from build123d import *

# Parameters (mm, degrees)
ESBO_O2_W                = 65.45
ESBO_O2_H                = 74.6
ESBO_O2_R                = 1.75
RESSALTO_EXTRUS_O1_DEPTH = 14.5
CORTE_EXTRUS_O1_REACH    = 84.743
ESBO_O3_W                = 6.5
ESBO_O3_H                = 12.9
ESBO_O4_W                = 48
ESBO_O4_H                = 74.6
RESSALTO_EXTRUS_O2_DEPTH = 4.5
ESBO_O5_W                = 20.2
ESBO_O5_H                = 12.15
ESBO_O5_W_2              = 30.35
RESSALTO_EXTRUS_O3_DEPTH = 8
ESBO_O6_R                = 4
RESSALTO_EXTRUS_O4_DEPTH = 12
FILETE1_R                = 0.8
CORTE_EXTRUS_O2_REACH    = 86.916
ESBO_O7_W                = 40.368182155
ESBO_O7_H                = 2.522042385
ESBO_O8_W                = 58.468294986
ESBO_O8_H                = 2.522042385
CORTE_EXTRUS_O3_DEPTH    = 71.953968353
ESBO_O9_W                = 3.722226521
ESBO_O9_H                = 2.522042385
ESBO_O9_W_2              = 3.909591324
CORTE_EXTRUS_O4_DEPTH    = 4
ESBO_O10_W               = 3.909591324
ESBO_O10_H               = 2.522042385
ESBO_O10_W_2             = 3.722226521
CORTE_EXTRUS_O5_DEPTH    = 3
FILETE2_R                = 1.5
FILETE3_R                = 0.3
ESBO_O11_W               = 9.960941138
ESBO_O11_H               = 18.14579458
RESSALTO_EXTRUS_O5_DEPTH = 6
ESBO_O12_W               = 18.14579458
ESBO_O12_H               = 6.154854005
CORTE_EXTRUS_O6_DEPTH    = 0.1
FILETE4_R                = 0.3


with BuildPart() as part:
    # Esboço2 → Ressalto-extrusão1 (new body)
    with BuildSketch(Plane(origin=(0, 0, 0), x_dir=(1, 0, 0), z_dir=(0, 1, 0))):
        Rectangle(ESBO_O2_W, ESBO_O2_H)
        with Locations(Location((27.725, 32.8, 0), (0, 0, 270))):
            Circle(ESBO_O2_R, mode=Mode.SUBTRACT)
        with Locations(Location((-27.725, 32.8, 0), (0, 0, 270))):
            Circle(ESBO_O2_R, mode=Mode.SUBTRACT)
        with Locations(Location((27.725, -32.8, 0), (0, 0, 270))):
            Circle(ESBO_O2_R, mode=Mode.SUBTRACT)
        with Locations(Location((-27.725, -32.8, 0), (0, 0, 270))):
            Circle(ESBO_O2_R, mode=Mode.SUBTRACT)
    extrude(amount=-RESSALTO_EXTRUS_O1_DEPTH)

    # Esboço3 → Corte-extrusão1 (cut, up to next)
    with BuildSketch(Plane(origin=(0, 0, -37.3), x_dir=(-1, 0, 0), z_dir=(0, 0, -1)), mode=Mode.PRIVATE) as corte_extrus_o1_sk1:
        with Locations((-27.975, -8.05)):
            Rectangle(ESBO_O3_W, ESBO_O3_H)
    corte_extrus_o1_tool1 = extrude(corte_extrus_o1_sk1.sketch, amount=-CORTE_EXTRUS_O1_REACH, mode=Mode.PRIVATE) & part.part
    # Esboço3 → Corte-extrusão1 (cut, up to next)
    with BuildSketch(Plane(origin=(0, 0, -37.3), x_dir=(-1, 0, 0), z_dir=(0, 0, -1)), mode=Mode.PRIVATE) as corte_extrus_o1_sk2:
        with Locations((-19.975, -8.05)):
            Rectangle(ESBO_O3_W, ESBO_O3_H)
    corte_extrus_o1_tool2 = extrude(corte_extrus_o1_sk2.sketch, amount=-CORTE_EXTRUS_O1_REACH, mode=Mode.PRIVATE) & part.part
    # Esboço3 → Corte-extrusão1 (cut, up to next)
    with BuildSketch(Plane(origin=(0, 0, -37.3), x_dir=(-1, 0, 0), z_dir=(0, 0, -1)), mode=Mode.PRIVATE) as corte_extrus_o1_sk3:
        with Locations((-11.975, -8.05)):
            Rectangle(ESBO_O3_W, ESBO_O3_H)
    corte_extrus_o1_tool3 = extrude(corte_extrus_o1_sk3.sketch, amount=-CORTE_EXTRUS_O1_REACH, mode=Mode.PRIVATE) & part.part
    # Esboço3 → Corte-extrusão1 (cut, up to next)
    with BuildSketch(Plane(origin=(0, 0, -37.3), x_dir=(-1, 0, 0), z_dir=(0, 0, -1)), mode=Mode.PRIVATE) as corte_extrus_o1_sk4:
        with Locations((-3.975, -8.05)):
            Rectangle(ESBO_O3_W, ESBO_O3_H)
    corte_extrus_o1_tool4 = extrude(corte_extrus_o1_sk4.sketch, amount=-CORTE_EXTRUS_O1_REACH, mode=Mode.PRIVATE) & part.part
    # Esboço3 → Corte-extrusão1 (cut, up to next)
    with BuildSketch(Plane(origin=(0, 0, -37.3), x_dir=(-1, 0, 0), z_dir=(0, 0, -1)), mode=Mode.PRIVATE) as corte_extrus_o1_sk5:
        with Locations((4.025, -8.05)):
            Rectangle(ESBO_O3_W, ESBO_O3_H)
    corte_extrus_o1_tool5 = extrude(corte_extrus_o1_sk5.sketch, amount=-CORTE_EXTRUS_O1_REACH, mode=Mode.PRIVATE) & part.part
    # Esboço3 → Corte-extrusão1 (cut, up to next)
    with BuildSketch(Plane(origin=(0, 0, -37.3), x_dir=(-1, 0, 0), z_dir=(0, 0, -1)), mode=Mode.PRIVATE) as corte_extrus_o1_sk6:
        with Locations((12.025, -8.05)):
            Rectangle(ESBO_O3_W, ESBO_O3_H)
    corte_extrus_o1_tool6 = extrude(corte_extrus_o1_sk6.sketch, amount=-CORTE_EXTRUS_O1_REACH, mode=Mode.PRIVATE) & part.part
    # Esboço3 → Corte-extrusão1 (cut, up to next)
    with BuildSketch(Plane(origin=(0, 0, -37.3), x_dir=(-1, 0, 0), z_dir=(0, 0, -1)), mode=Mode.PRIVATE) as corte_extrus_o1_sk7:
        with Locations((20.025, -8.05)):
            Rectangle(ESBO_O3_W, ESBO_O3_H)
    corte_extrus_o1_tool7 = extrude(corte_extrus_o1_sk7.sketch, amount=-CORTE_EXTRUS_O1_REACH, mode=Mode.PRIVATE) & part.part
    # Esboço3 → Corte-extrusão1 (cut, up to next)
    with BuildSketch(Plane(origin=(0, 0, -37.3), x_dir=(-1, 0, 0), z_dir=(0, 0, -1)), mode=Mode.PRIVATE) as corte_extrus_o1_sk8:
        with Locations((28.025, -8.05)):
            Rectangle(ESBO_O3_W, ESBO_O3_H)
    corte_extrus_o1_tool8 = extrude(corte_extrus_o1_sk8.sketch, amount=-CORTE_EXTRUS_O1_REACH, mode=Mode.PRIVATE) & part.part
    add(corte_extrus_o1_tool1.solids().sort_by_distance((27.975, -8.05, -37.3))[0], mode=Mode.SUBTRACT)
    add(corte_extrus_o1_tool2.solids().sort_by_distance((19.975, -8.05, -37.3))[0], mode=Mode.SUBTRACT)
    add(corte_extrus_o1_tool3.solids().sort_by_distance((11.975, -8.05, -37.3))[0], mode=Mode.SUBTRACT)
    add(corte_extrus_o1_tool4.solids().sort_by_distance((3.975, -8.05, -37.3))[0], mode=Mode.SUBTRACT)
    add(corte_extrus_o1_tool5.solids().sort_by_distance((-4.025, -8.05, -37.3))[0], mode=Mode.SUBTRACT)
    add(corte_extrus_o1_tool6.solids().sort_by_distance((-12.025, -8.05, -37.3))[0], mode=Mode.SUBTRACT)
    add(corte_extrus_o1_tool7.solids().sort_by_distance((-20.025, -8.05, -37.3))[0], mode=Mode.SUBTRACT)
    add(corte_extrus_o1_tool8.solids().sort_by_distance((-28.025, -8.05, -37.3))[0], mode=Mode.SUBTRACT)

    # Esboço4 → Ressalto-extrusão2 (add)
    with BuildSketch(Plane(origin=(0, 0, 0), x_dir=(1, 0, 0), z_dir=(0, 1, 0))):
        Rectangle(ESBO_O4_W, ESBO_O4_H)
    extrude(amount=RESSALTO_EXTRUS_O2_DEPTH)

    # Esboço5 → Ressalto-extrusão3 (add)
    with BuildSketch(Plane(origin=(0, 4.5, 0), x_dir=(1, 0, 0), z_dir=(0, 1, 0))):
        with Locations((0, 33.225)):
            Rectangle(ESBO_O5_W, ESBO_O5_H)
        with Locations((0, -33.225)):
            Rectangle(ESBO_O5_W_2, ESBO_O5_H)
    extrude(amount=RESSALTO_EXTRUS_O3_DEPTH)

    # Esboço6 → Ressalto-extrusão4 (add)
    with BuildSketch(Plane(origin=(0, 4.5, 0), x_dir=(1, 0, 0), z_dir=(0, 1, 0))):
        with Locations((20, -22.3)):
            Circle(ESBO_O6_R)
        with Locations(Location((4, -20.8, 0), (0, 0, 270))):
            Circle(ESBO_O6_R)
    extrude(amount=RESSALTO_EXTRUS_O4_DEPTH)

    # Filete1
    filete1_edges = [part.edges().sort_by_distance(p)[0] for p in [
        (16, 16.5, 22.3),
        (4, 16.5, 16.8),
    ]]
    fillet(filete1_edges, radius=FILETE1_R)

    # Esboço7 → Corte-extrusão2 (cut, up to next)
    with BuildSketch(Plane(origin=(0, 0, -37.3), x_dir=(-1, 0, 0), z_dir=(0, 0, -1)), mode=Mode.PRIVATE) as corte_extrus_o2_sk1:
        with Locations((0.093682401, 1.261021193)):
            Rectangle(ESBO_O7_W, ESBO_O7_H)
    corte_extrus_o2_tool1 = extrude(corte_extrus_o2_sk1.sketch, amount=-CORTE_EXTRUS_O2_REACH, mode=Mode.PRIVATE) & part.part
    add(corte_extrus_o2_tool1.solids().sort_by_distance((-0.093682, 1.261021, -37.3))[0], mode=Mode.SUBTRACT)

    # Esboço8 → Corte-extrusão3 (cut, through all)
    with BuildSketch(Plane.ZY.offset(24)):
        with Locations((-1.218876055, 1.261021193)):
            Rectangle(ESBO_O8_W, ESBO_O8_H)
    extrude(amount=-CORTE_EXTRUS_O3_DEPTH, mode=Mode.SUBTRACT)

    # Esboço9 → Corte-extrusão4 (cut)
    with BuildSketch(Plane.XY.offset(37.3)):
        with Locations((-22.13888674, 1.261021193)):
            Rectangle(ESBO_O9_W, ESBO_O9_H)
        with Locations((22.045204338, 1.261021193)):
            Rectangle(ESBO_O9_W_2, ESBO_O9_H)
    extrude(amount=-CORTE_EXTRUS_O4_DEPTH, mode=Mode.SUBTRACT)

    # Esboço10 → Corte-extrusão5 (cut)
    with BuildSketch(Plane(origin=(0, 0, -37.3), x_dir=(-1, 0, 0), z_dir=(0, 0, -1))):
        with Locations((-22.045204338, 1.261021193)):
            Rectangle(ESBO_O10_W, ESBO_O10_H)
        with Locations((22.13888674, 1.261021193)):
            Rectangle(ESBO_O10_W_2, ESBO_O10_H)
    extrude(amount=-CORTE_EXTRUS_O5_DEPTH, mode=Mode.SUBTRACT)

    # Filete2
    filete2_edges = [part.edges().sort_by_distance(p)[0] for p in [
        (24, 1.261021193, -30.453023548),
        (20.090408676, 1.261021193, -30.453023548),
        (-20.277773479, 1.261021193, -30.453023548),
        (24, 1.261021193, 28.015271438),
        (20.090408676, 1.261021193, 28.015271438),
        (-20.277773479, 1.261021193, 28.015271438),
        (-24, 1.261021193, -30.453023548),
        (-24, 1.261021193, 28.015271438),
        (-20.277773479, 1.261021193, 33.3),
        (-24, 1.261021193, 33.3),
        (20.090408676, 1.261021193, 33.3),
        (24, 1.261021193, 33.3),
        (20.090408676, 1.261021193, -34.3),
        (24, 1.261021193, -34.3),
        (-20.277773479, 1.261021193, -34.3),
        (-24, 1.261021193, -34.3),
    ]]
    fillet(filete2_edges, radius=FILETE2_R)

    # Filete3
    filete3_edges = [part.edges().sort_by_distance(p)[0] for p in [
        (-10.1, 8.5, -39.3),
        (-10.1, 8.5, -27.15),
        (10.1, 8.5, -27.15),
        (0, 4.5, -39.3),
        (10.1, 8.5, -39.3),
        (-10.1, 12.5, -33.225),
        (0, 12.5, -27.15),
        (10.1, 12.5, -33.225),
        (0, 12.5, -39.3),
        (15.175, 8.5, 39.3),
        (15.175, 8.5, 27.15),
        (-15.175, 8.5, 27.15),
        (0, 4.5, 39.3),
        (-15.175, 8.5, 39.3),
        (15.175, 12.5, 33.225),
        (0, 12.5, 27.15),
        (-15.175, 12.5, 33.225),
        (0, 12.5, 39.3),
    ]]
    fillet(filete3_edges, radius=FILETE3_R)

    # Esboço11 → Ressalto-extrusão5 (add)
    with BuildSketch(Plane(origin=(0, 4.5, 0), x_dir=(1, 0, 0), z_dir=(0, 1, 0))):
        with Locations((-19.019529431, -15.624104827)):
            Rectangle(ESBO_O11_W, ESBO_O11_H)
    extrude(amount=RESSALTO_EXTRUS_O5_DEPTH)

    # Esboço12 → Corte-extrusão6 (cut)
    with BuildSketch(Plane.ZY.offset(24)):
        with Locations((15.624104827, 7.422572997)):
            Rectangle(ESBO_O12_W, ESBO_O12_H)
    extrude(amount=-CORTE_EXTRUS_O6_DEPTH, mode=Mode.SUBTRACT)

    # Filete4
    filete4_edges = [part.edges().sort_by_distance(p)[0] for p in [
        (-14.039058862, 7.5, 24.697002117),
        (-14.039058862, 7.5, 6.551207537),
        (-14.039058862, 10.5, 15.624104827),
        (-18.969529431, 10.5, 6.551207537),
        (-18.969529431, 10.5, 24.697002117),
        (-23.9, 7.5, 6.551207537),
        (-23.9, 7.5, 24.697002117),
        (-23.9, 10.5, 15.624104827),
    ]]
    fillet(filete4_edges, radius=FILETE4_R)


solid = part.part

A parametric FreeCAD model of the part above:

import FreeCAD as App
import Part
import Sketcher
from FreeCAD import Vector
Q = App.Units.Quantity


def edges_at(feature, points):
    """Names of the edges that pass closest to the given points."""
    edges = feature.Shape.Edges
    near = lambda p: min(range(len(edges)), key=lambda i: edges[i].distToShape(Part.Vertex(*p))[0])
    return sorted({f"Edge{near(p) + 1}" for p in points})

doc = App.newDocument("Part")
body = doc.addObject("PartDesign::Body", "Body")

# Sketch on XZ plane
sketch1 = body.newObject("Sketcher::SketchObject", "Sketch")
sketch1.AttachmentSupport = (doc.getObject("XZ_Plane"), [""])
sketch1.MapMode = "FlatFace"
sketch1.addGeometry([
    Part.LineSegment(Vector(-32.7, -37.3, 0), Vector(-32.7, 37.3, 0)),  # 0
    Part.LineSegment(Vector(-32.7, 37.3, 0), Vector(32.7, 37.3, 0)),  # 1
    Part.LineSegment(Vector(32.7, 37.3, 0), Vector(32.7, -37.3, 0)),  # 2
    Part.LineSegment(Vector(32.7, -37.3, 0), Vector(-32.7, -37.3, 0)),  # 3
    Part.Circle(Vector(-27.7, 32.8, 0), Vector(0, 0, 1), 1.8),  # 4
    Part.Circle(Vector(27.7, 32.8, 0), Vector(0, 0, 1), 1.8),  # 5
    Part.Circle(Vector(-27.7, -32.8, 0), Vector(0, 0, 1), 1.8),  # 6
    Part.Circle(Vector(27.7, -32.8, 0), Vector(0, 0, 1), 1.8),  # 7
], False)
sketch1.addConstraint([
    Sketcher.Constraint("Coincident", 0, 2, 1, 1),
    Sketcher.Constraint("Coincident", 1, 2, 2, 1),
    Sketcher.Constraint("Coincident", 2, 2, 3, 1),
    Sketcher.Constraint("Coincident", 3, 2, 0, 1),
    Sketcher.Constraint("Vertical", 0),
    Sketcher.Constraint("Horizontal", 1),
    Sketcher.Constraint("Vertical", 2),
    Sketcher.Constraint("Horizontal", 3),
    Sketcher.Constraint("Equal", 4, 5),
    Sketcher.Constraint("Equal", 5, 6),
    Sketcher.Constraint("Equal", 6, 7),
    Sketcher.Constraint("Symmetric", 5, 3, 6, 3, -1, 1),
    Sketcher.Constraint("Symmetric", 4, 3, 7, 3, -1, 1),
    Sketcher.Constraint("Symmetric", 0, 2, 2, 2, -1, 1),
    Sketcher.Constraint("Symmetric", 4, 3, 5, 3, -2),
    Sketcher.Constraint("Diameter", 4, Q("3.5 mm")),
    Sketcher.Constraint("DistanceY", 0, 1, 0, 2, Q("74.6 mm")),
    Sketcher.Constraint("DistanceX", 0, 2, 4, 3, Q("5 mm")),
    Sketcher.Constraint("DistanceX", 1, 1, 1, 2, Q("65.45 mm")),
    Sketcher.Constraint("DistanceY", -1, 1, 4, 3, Q("32.8 mm")),
])
pad1 = body.newObject("PartDesign::Pad", "Pad")
pad1.Profile = sketch1
pad1.Length = 14.5

# Sketch on XY plane
sketch2 = body.newObject("Sketcher::SketchObject", "Sketch001")
sketch2.AttachmentSupport = (doc.getObject("XY_Plane"), [""])
sketch2.MapMode = "FlatFace"
sketch2.AttachmentOffset = App.Placement(Vector(0, 0, -37.3), App.Rotation())
sketch2.addGeometry([
    Part.LineSegment(Vector(31, -2, 0), Vector(31, -14, 0)),
    Part.LineSegment(Vector(31, -14, 0), Vector(25, -14, 0)),
    Part.LineSegment(Vector(25, -14, 0), Vector(25, -2, 0)),
    Part.LineSegment(Vector(25, -2, 0), Vector(31, -2, 0)),
], False)
sketch2.addConstraint([
    Sketcher.Constraint("Coincident", 0, 2, 1, 1),
    Sketcher.Constraint("Coincident", 1, 2, 2, 1),
    Sketcher.Constraint("Coincident", 2, 2, 3, 1),
    Sketcher.Constraint("Coincident", 3, 2, 0, 1),
    Sketcher.Constraint("Vertical", 0),
    Sketcher.Constraint("Horizontal", 1),
    Sketcher.Constraint("Vertical", 2),
    Sketcher.Constraint("Horizontal", 3),
    Sketcher.Constraint("DistanceX", 1, 2, 1, 1, Q("6.5 mm")),
    Sketcher.Constraint("DistanceY", 0, 2, 0, 1, Q("12.9 mm")),
    Sketcher.Constraint("DistanceY", 0, 2, -1, 1, Q("14.5 mm")),
    Sketcher.Constraint("DistanceX", -1, 1, 0, 2, Q("31.225 mm")),
])
pocket1 = body.newObject("PartDesign::Pocket", "Pocket")
pocket1.Profile = sketch2
pocket1.Type = "UpToFirst"
pocket1.Reversed = True

# Sketch on XY plane
sketch3 = body.newObject("Sketcher::SketchObject", "Sketch002")
sketch3.AttachmentSupport = (doc.getObject("XY_Plane"), [""])
sketch3.MapMode = "FlatFace"
sketch3.AttachmentOffset = App.Placement(Vector(0, 0, -37.3), App.Rotation())
sketch3.addGeometry([
    Part.LineSegment(Vector(23, -2, 0), Vector(23, -14, 0)),
    Part.LineSegment(Vector(23, -14, 0), Vector(17, -14, 0)),
    Part.LineSegment(Vector(17, -14, 0), Vector(17, -2, 0)),
    Part.LineSegment(Vector(17, -2, 0), Vector(23, -2, 0)),
], False)
sketch3.addConstraint([
    Sketcher.Constraint("Coincident", 0, 2, 1, 1),
    Sketcher.Constraint("Coincident", 1, 2, 2, 1),
    Sketcher.Constraint("Coincident", 2, 2, 3, 1),
    Sketcher.Constraint("Coincident", 3, 2, 0, 1),
    Sketcher.Constraint("Vertical", 0),
    Sketcher.Constraint("Horizontal", 1),
    Sketcher.Constraint("Vertical", 2),
    Sketcher.Constraint("Horizontal", 3),
    Sketcher.Constraint("DistanceX", 1, 2, 1, 1, Q("6.5 mm")),
    Sketcher.Constraint("DistanceY", 0, 2, 0, 1, Q("12.9 mm")),
    Sketcher.Constraint("DistanceY", 0, 2, -1, 1, Q("14.5 mm")),
    Sketcher.Constraint("DistanceX", -1, 1, 0, 2, Q("23.225 mm")),
])
pocket2 = body.newObject("PartDesign::Pocket", "Pocket001")
pocket2.Profile = sketch3
pocket2.Type = "UpToFirst"
pocket2.Reversed = True

# Sketch on XY plane
sketch4 = body.newObject("Sketcher::SketchObject", "Sketch003")
sketch4.AttachmentSupport = (doc.getObject("XY_Plane"), [""])
sketch4.MapMode = "FlatFace"
sketch4.AttachmentOffset = App.Placement(Vector(0, 0, -37.3), App.Rotation())
sketch4.addGeometry([
    Part.LineSegment(Vector(15, -2, 0), Vector(15, -14, 0)),
    Part.LineSegment(Vector(15, -14, 0), Vector(9, -14, 0)),
    Part.LineSegment(Vector(9, -14, 0), Vector(9, -2, 0)),
    Part.LineSegment(Vector(9, -2, 0), Vector(15, -2, 0)),
], False)
sketch4.addConstraint([
    Sketcher.Constraint("Coincident", 0, 2, 1, 1),
    Sketcher.Constraint("Coincident", 1, 2, 2, 1),
    Sketcher.Constraint("Coincident", 2, 2, 3, 1),
    Sketcher.Constraint("Coincident", 3, 2, 0, 1),
    Sketcher.Constraint("Vertical", 0),
    Sketcher.Constraint("Horizontal", 1),
    Sketcher.Constraint("Vertical", 2),
    Sketcher.Constraint("Horizontal", 3),
    Sketcher.Constraint("DistanceX", 1, 2, 1, 1, Q("6.5 mm")),
    Sketcher.Constraint("DistanceY", 0, 2, 0, 1, Q("12.9 mm")),
    Sketcher.Constraint("DistanceY", 0, 2, -1, 1, Q("14.5 mm")),
    Sketcher.Constraint("DistanceX", -1, 1, 0, 2, Q("15.225 mm")),
])
pocket3 = body.newObject("PartDesign::Pocket", "Pocket002")
pocket3.Profile = sketch4
pocket3.Type = "UpToFirst"
pocket3.Reversed = True

# Sketch on XY plane
sketch5 = body.newObject("Sketcher::SketchObject", "Sketch004")
sketch5.AttachmentSupport = (doc.getObject("XY_Plane"), [""])
sketch5.MapMode = "FlatFace"
sketch5.AttachmentOffset = App.Placement(Vector(0, 0, -37.3), App.Rotation())
sketch5.addGeometry([
    Part.LineSegment(Vector(7, -2, 0), Vector(7, -14, 0)),
    Part.LineSegment(Vector(7, -14, 0), Vector(1, -14, 0)),
    Part.LineSegment(Vector(1, -14, 0), Vector(1, -2, 0)),
    Part.LineSegment(Vector(1, -2, 0), Vector(7, -2, 0)),
], False)
sketch5.addConstraint([
    Sketcher.Constraint("Coincident", 0, 2, 1, 1),
    Sketcher.Constraint("Coincident", 1, 2, 2, 1),
    Sketcher.Constraint("Coincident", 2, 2, 3, 1),
    Sketcher.Constraint("Coincident", 3, 2, 0, 1),
    Sketcher.Constraint("Vertical", 0),
    Sketcher.Constraint("Horizontal", 1),
    Sketcher.Constraint("Vertical", 2),
    Sketcher.Constraint("Horizontal", 3),
    Sketcher.Constraint("DistanceX", 1, 2, 1, 1, Q("6.5 mm")),
    Sketcher.Constraint("DistanceY", 0, 2, 0, 1, Q("12.9 mm")),
    Sketcher.Constraint("DistanceY", 0, 2, -1, 1, Q("14.5 mm")),
    Sketcher.Constraint("DistanceX", -1, 1, 0, 2, Q("7.225 mm")),
])
pocket4 = body.newObject("PartDesign::Pocket", "Pocket003")
pocket4.Profile = sketch5
pocket4.Type = "UpToFirst"
pocket4.Reversed = True

# Sketch on XY plane
sketch6 = body.newObject("Sketcher::SketchObject", "Sketch005")
sketch6.AttachmentSupport = (doc.getObject("XY_Plane"), [""])
sketch6.MapMode = "FlatFace"
sketch6.AttachmentOffset = App.Placement(Vector(0, 0, -37.3), App.Rotation())
sketch6.addGeometry([
    Part.LineSegment(Vector(-1, -2, 0), Vector(-1, -14, 0)),
    Part.LineSegment(Vector(-1, -14, 0), Vector(-7, -14, 0)),
    Part.LineSegment(Vector(-7, -14, 0), Vector(-7, -2, 0)),
    Part.LineSegment(Vector(-7, -2, 0), Vector(-1, -2, 0)),
], False)
sketch6.addConstraint([
    Sketcher.Constraint("Coincident", 0, 2, 1, 1),
    Sketcher.Constraint("Coincident", 1, 2, 2, 1),
    Sketcher.Constraint("Coincident", 2, 2, 3, 1),
    Sketcher.Constraint("Coincident", 3, 2, 0, 1),
    Sketcher.Constraint("Vertical", 0),
    Sketcher.Constraint("Horizontal", 1),
    Sketcher.Constraint("Vertical", 2),
    Sketcher.Constraint("Horizontal", 3),
    Sketcher.Constraint("DistanceX", 1, 2, 1, 1, Q("6.5 mm")),
    Sketcher.Constraint("DistanceY", 0, 2, 0, 1, Q("12.9 mm")),
    Sketcher.Constraint("DistanceY", 0, 2, -1, 1, Q("14.5 mm")),
    Sketcher.Constraint("DistanceX", 0, 2, -1, 1, Q("0.775 mm")),
])
pocket5 = body.newObject("PartDesign::Pocket", "Pocket004")
pocket5.Profile = sketch6
pocket5.Type = "UpToFirst"
pocket5.Reversed = True

# Sketch on XY plane
sketch7 = body.newObject("Sketcher::SketchObject", "Sketch006")
sketch7.AttachmentSupport = (doc.getObject("XY_Plane"), [""])
sketch7.MapMode = "FlatFace"
sketch7.AttachmentOffset = App.Placement(Vector(0, 0, -37.3), App.Rotation())
sketch7.addGeometry([
    Part.LineSegment(Vector(-9, -2, 0), Vector(-9, -14, 0)),
    Part.LineSegment(Vector(-9, -14, 0), Vector(-15, -14, 0)),
    Part.LineSegment(Vector(-15, -14, 0), Vector(-15, -2, 0)),
    Part.LineSegment(Vector(-15, -2, 0), Vector(-9, -2, 0)),
], False)
sketch7.addConstraint([
    Sketcher.Constraint("Coincident", 0, 2, 1, 1),
    Sketcher.Constraint("Coincident", 1, 2, 2, 1),
    Sketcher.Constraint("Coincident", 2, 2, 3, 1),
    Sketcher.Constraint("Coincident", 3, 2, 0, 1),
    Sketcher.Constraint("Vertical", 0),
    Sketcher.Constraint("Horizontal", 1),
    Sketcher.Constraint("Vertical", 2),
    Sketcher.Constraint("Horizontal", 3),
    Sketcher.Constraint("DistanceX", 1, 2, 1, 1, Q("6.5 mm")),
    Sketcher.Constraint("DistanceY", 0, 2, 0, 1, Q("12.9 mm")),
    Sketcher.Constraint("DistanceY", 0, 2, -1, 1, Q("14.5 mm")),
    Sketcher.Constraint("DistanceX", 0, 2, -1, 1, Q("8.775 mm")),
])
pocket6 = body.newObject("PartDesign::Pocket", "Pocket005")
pocket6.Profile = sketch7
pocket6.Type = "UpToFirst"
pocket6.Reversed = True

# Sketch on XY plane
sketch8 = body.newObject("Sketcher::SketchObject", "Sketch007")
sketch8.AttachmentSupport = (doc.getObject("XY_Plane"), [""])
sketch8.MapMode = "FlatFace"
sketch8.AttachmentOffset = App.Placement(Vector(0, 0, -37.3), App.Rotation())
sketch8.addGeometry([
    Part.LineSegment(Vector(-17, -2, 0), Vector(-17, -14, 0)),
    Part.LineSegment(Vector(-17, -14, 0), Vector(-23, -14, 0)),
    Part.LineSegment(Vector(-23, -14, 0), Vector(-23, -2, 0)),
    Part.LineSegment(Vector(-23, -2, 0), Vector(-17, -2, 0)),
], False)
sketch8.addConstraint([
    Sketcher.Constraint("Coincident", 0, 2, 1, 1),
    Sketcher.Constraint("Coincident", 1, 2, 2, 1),
    Sketcher.Constraint("Coincident", 2, 2, 3, 1),
    Sketcher.Constraint("Coincident", 3, 2, 0, 1),
    Sketcher.Constraint("Vertical", 0),
    Sketcher.Constraint("Horizontal", 1),
    Sketcher.Constraint("Vertical", 2),
    Sketcher.Constraint("Horizontal", 3),
    Sketcher.Constraint("DistanceX", 1, 2, 1, 1, Q("6.5 mm")),
    Sketcher.Constraint("DistanceY", 0, 2, 0, 1, Q("12.9 mm")),
    Sketcher.Constraint("DistanceY", 0, 2, -1, 1, Q("14.5 mm")),
    Sketcher.Constraint("DistanceX", 0, 2, -1, 1, Q("16.775 mm")),
])
pocket7 = body.newObject("PartDesign::Pocket", "Pocket006")
pocket7.Profile = sketch8
pocket7.Type = "UpToFirst"
pocket7.Reversed = True

# Sketch on XY plane
sketch9 = body.newObject("Sketcher::SketchObject", "Sketch008")
sketch9.AttachmentSupport = (doc.getObject("XY_Plane"), [""])
sketch9.MapMode = "FlatFace"
sketch9.AttachmentOffset = App.Placement(Vector(0, 0, -37.3), App.Rotation())
sketch9.addGeometry([
    Part.LineSegment(Vector(-25, -2, 0), Vector(-25, -14, 0)),
    Part.LineSegment(Vector(-25, -14, 0), Vector(-31, -14, 0)),
    Part.LineSegment(Vector(-31, -14, 0), Vector(-31, -2, 0)),
    Part.LineSegment(Vector(-31, -2, 0), Vector(-25, -2, 0)),
], False)
sketch9.addConstraint([
    Sketcher.Constraint("Coincident", 0, 2, 1, 1),
    Sketcher.Constraint("Coincident", 1, 2, 2, 1),
    Sketcher.Constraint("Coincident", 2, 2, 3, 1),
    Sketcher.Constraint("Coincident", 3, 2, 0, 1),
    Sketcher.Constraint("Vertical", 0),
    Sketcher.Constraint("Horizontal", 1),
    Sketcher.Constraint("Vertical", 2),
    Sketcher.Constraint("Horizontal", 3),
    Sketcher.Constraint("DistanceX", 1, 2, 1, 1, Q("6.5 mm")),
    Sketcher.Constraint("DistanceY", 0, 2, 0, 1, Q("12.9 mm")),
    Sketcher.Constraint("DistanceY", 0, 2, -1, 1, Q("14.5 mm")),
    Sketcher.Constraint("DistanceX", 0, 2, -1, 1, Q("24.775 mm")),
])
pocket8 = body.newObject("PartDesign::Pocket", "Pocket007")
pocket8.Profile = sketch9
pocket8.Type = "UpToFirst"
pocket8.Reversed = True

# Sketch on XZ plane
sketch10 = body.newObject("Sketcher::SketchObject", "Sketch009")
sketch10.AttachmentSupport = (doc.getObject("XZ_Plane"), [""])
sketch10.MapMode = "FlatFace"
sketch10.addGeometry([
    Part.LineSegment(Vector(-24, -37, 0), Vector(-24, 37, 0)),
    Part.LineSegment(Vector(-24, 37, 0), Vector(24, 37, 0)),
    Part.LineSegment(Vector(24, 37, 0), Vector(24, -37, 0)),
    Part.LineSegment(Vector(24, -37, 0), Vector(-24, -37, 0)),
], False)
sketch10.addConstraint([
    Sketcher.Constraint("Coincident", 0, 2, 1, 1),
    Sketcher.Constraint("Coincident", 1, 2, 2, 1),
    Sketcher.Constraint("Coincident", 2, 2, 3, 1),
    Sketcher.Constraint("Coincident", 3, 2, 0, 1),
    Sketcher.Constraint("Vertical", 0),
    Sketcher.Constraint("Horizontal", 1),
    Sketcher.Constraint("Vertical", 2),
    Sketcher.Constraint("Horizontal", 3),
    Sketcher.Constraint("Symmetric", 0, 2, 2, 2, -1, 1),
    Sketcher.Constraint("DistanceX", 1, 1, 1, 2, Q("48 mm")),
    Sketcher.Constraint("DistanceY", 0, 1, 0, 2, Q("74.6 mm")),
])
pad2 = body.newObject("PartDesign::Pad", "Pad001")
pad2.Profile = sketch10
pad2.Length = 4.5
pad2.Reversed = True

# Sketch on XZ plane
sketch11 = body.newObject("Sketcher::SketchObject", "Sketch010")
sketch11.AttachmentSupport = (doc.getObject("XZ_Plane"), [""])
sketch11.MapMode = "FlatFace"
sketch11.AttachmentOffset = App.Placement(Vector(0, 0, -4.5), App.Rotation())
sketch11.addGeometry([
    Part.LineSegment(Vector(-10, -39, 0), Vector(-10, -27, 0)),  # 0
    Part.LineSegment(Vector(-10, -27, 0), Vector(10, -27, 0)),  # 1
    Part.LineSegment(Vector(10, -27, 0), Vector(10, -39, 0)),  # 2
    Part.LineSegment(Vector(10, -39, 0), Vector(-10, -39, 0)),  # 3
    Part.LineSegment(Vector(-15, 27, 0), Vector(-15, 39, 0)),  # 4
    Part.LineSegment(Vector(-15, 39, 0), Vector(15, 39, 0)),  # 5
    Part.LineSegment(Vector(15, 39, 0), Vector(15, 27, 0)),  # 6
    Part.LineSegment(Vector(15, 27, 0), Vector(-15, 27, 0)),  # 7
], False)
sketch11.addConstraint([
    Sketcher.Constraint("Coincident", 0, 2, 1, 1),
    Sketcher.Constraint("Coincident", 1, 2, 2, 1),
    Sketcher.Constraint("Coincident", 2, 2, 3, 1),
    Sketcher.Constraint("Coincident", 3, 2, 0, 1),
    Sketcher.Constraint("Coincident", 4, 2, 5, 1),
    Sketcher.Constraint("Coincident", 5, 2, 6, 1),
    Sketcher.Constraint("Coincident", 6, 2, 7, 1),
    Sketcher.Constraint("Coincident", 7, 2, 4, 1),
    Sketcher.Constraint("Vertical", 0),
    Sketcher.Constraint("Horizontal", 1),
    Sketcher.Constraint("Vertical", 2),
    Sketcher.Constraint("Horizontal", 3),
    Sketcher.Constraint("Vertical", 4),
    Sketcher.Constraint("Horizontal", 5),
    Sketcher.Constraint("Vertical", 6),
    Sketcher.Constraint("Horizontal", 7),
    Sketcher.Constraint("Equal", 2, 4),
    Sketcher.Constraint("DistanceX", 1, 1, 1, 2, Q("20.2 mm")),
    Sketcher.Constraint("DistanceX", 5, 1, 5, 2, Q("30.35 mm")),
    Sketcher.Constraint("DistanceY", 0, 1, 0, 2, Q("12.15 mm")),
    Sketcher.Constraint("DistanceX", 0, 2, -1, 1, Q("10.1 mm")),
    Sketcher.Constraint("DistanceY", 2, 2, -1, 1, Q("39.3 mm")),
    Sketcher.Constraint("DistanceY", -1, 1, 4, 2, Q("39.3 mm")),
    Sketcher.Constraint("DistanceX", 4, 2, -1, 1, Q("15.175 mm")),
])
pad3 = body.newObject("PartDesign::Pad", "Pad002")
pad3.Profile = sketch11
pad3.Length = 8
pad3.Reversed = True

# Sketch on XZ plane
sketch12 = body.newObject("Sketcher::SketchObject", "Sketch011")
sketch12.AttachmentSupport = (doc.getObject("XZ_Plane"), [""])
sketch12.MapMode = "FlatFace"
sketch12.AttachmentOffset = App.Placement(Vector(0, 0, -4.5), App.Rotation())
sketch12.addGeometry([
    Part.Circle(Vector(20, 22.3, 0), Vector(0, 0, 1), 4),
    Part.Circle(Vector(4, 20.8, 0), Vector(0, 0, 1), 4),
], False)
sketch12.addConstraint([
    Sketcher.Constraint("Equal", 0, 1),
    Sketcher.Constraint("Diameter", 0, Q("8 mm")),
    Sketcher.Constraint("DistanceX", -1, 1, 0, 3, Q("20 mm")),
    Sketcher.Constraint("DistanceX", -1, 1, 1, 3, Q("4 mm")),
    Sketcher.Constraint("DistanceY", -1, 1, 0, 3, Q("22.3 mm")),
    Sketcher.Constraint("DistanceY", -1, 1, 1, 3, Q("20.8 mm")),
])
pad4 = body.newObject("PartDesign::Pad", "Pad003")
pad4.Profile = sketch12
pad4.Length = 12
pad4.Reversed = True
doc.recompute()

fillet = body.newObject("PartDesign::Fillet", "Fillet")
fillet.Base = (pad4, edges_at(pad4, [(16, 16.5, 22.3), (4, 16.5, 16.8)]))
fillet.Radius = 0.8

# Sketch on XY plane
sketch13 = body.newObject("Sketcher::SketchObject", "Sketch012")
sketch13.AttachmentSupport = (doc.getObject("XY_Plane"), [""])
sketch13.MapMode = "FlatFace"
sketch13.AttachmentOffset = App.Placement(Vector(0, 0, -37.3), App.Rotation())
sketch13.addGeometry([
    Part.LineSegment(Vector(20.1, 2.5, 0), Vector(20.1, 0, 0)),
    Part.LineSegment(Vector(20.1, 0, 0), Vector(-20.3, 0, 0)),
    Part.LineSegment(Vector(-20.3, 0, 0), Vector(-20.3, 2.5, 0)),
    Part.LineSegment(Vector(-20.3, 2.5, 0), Vector(20.1, 2.5, 0)),
], False)
sketch13.addConstraint([
    Sketcher.Constraint("Coincident", 0, 2, 1, 1),
    Sketcher.Constraint("Coincident", 1, 2, 2, 1),
    Sketcher.Constraint("Coincident", 2, 2, 3, 1),
    Sketcher.Constraint("Coincident", 3, 2, 0, 1),
    Sketcher.Constraint("Vertical", 0),
    Sketcher.Constraint("Horizontal", 1),
    Sketcher.Constraint("Vertical", 2),
    Sketcher.Constraint("Horizontal", 3),
    Sketcher.Constraint("PointOnObject", 0, 2, -1),
    Sketcher.Constraint("DistanceX", 1, 2, 1, 1, Q("40.368182 mm")),
    Sketcher.Constraint("DistanceY", 0, 2, 0, 1, Q("2.522042 mm")),
    Sketcher.Constraint("DistanceX", -1, 1, 0, 2, Q("20.090409 mm")),
])
pocket9 = body.newObject("PartDesign::Pocket", "Pocket008")
pocket9.Profile = sketch13
pocket9.Type = "UpToFirst"
pocket9.Reversed = True

# Sketch on YZ plane
sketch14 = body.newObject("Sketcher::SketchObject", "Sketch013")
sketch14.AttachmentSupport = (doc.getObject("YZ_Plane"), [""])
sketch14.MapMode = "FlatFace"
sketch14.AttachmentOffset = App.Placement(Vector(0, 0, -24), App.Rotation())
sketch14.addGeometry([
    Part.LineSegment(Vector(2.5, -30.5, 0), Vector(0, -30.5, 0)),
    Part.LineSegment(Vector(0, -30.5, 0), Vector(0, 28, 0)),
    Part.LineSegment(Vector(0, 28, 0), Vector(2.5, 28, 0)),
    Part.LineSegment(Vector(2.5, 28, 0), Vector(2.5, -30.5, 0)),
], False)
sketch14.addConstraint([
    Sketcher.Constraint("Coincident", 0, 2, 1, 1),
    Sketcher.Constraint("Coincident", 1, 2, 2, 1),
    Sketcher.Constraint("Coincident", 2, 2, 3, 1),
    Sketcher.Constraint("Coincident", 3, 2, 0, 1),
    Sketcher.Constraint("Horizontal", 0),
    Sketcher.Constraint("Vertical", 1),
    Sketcher.Constraint("Horizontal", 2),
    Sketcher.Constraint("Vertical", 3),
    Sketcher.Constraint("PointOnObject", 0, 2, -2),
    Sketcher.Constraint("DistanceX", 0, 2, 0, 1, Q("2.522042 mm")),
    Sketcher.Constraint("DistanceY", 1, 1, 1, 2, Q("58.468295 mm")),
    Sketcher.Constraint("DistanceY", -1, 1, 1, 2, Q("28.015271 mm")),
])
pocket10 = body.newObject("PartDesign::Pocket", "Pocket009")
pocket10.Profile = sketch14
pocket10.Type = "ThroughAll"
pocket10.Reversed = True

# Sketch on XY plane
sketch15 = body.newObject("Sketcher::SketchObject", "Sketch014")
sketch15.AttachmentSupport = (doc.getObject("XY_Plane"), [""])
sketch15.MapMode = "FlatFace"
sketch15.AttachmentOffset = App.Placement(Vector(0, 0, 37.3), App.Rotation())
sketch15.addGeometry([
    Part.LineSegment(Vector(-24, 2.5, 0), Vector(-24, 0, 0)),  # 0
    Part.LineSegment(Vector(-24, 0, 0), Vector(-20.3, 0, 0)),  # 1
    Part.LineSegment(Vector(-20.3, 0, 0), Vector(-20.3, 2.5, 0)),  # 2
    Part.LineSegment(Vector(-20.3, 2.5, 0), Vector(-24, 2.5, 0)),  # 3
    Part.LineSegment(Vector(20.1, 2.5, 0), Vector(20.1, 0, 0)),  # 4
    Part.LineSegment(Vector(20.1, 0, 0), Vector(24, 0, 0)),  # 5
    Part.LineSegment(Vector(24, 0, 0), Vector(24, 2.5, 0)),  # 6
    Part.LineSegment(Vector(24, 2.5, 0), Vector(20.1, 2.5, 0)),  # 7
], False)
sketch15.addConstraint([
    Sketcher.Constraint("Coincident", 0, 2, 1, 1),
    Sketcher.Constraint("Coincident", 1, 2, 2, 1),
    Sketcher.Constraint("Coincident", 2, 2, 3, 1),
    Sketcher.Constraint("Coincident", 3, 2, 0, 1),
    Sketcher.Constraint("Coincident", 4, 2, 5, 1),
    Sketcher.Constraint("Coincident", 5, 2, 6, 1),
    Sketcher.Constraint("Coincident", 6, 2, 7, 1),
    Sketcher.Constraint("Coincident", 7, 2, 4, 1),
    Sketcher.Constraint("Vertical", 0),
    Sketcher.Constraint("Horizontal", 1),
    Sketcher.Constraint("Vertical", 2),
    Sketcher.Constraint("Horizontal", 3),
    Sketcher.Constraint("Vertical", 4),
    Sketcher.Constraint("Horizontal", 5),
    Sketcher.Constraint("Vertical", 6),
    Sketcher.Constraint("Horizontal", 7),
    Sketcher.Constraint("Symmetric", 0, 2, 5, 2, -1, 1),
    Sketcher.Constraint("PointOnObject", 0, 2, -1),
    Sketcher.Constraint("Horizontal", 3, 2, 6, 2),
    Sketcher.Constraint("DistanceX", 0, 2, -1, 1, Q("24 mm")),
    Sketcher.Constraint("DistanceX", 5, 1, 5, 2, Q("3.909591 mm")),
    Sketcher.Constraint("DistanceX", 1, 1, 1, 2, Q("3.722227 mm")),
    Sketcher.Constraint("DistanceY", 0, 2, 0, 1, Q("2.522042 mm")),
])
pocket11 = body.newObject("PartDesign::Pocket", "Pocket010")
pocket11.Profile = sketch15
pocket11.Length = 4

# Sketch on XY plane
sketch16 = body.newObject("Sketcher::SketchObject", "Sketch015")
sketch16.AttachmentSupport = (doc.getObject("XY_Plane"), [""])
sketch16.MapMode = "FlatFace"
sketch16.AttachmentOffset = App.Placement(Vector(0, 0, -37.3), App.Rotation())
sketch16.addGeometry([
    Part.LineSegment(Vector(24, 2.5, 0), Vector(24, 0, 0)),  # 0
    Part.LineSegment(Vector(24, 0, 0), Vector(20.1, 0, 0)),  # 1
    Part.LineSegment(Vector(20.1, 0, 0), Vector(20.1, 2.5, 0)),  # 2
    Part.LineSegment(Vector(20.1, 2.5, 0), Vector(24, 2.5, 0)),  # 3
    Part.LineSegment(Vector(-20.3, 2.5, 0), Vector(-20.3, 0, 0)),  # 4
    Part.LineSegment(Vector(-20.3, 0, 0), Vector(-24, 0, 0)),  # 5
    Part.LineSegment(Vector(-24, 0, 0), Vector(-24, 2.5, 0)),  # 6
    Part.LineSegment(Vector(-24, 2.5, 0), Vector(-20.3, 2.5, 0)),  # 7
], False)
sketch16.addConstraint([
    Sketcher.Constraint("Coincident", 0, 2, 1, 1),
    Sketcher.Constraint("Coincident", 1, 2, 2, 1),
    Sketcher.Constraint("Coincident", 2, 2, 3, 1),
    Sketcher.Constraint("Coincident", 3, 2, 0, 1),
    Sketcher.Constraint("Coincident", 4, 2, 5, 1),
    Sketcher.Constraint("Coincident", 5, 2, 6, 1),
    Sketcher.Constraint("Coincident", 6, 2, 7, 1),
    Sketcher.Constraint("Coincident", 7, 2, 4, 1),
    Sketcher.Constraint("Vertical", 0),
    Sketcher.Constraint("Horizontal", 1),
    Sketcher.Constraint("Vertical", 2),
    Sketcher.Constraint("Horizontal", 3),
    Sketcher.Constraint("Vertical", 4),
    Sketcher.Constraint("Horizontal", 5),
    Sketcher.Constraint("Vertical", 6),
    Sketcher.Constraint("Horizontal", 7),
    Sketcher.Constraint("Symmetric", 0, 2, 5, 2, -1, 1),
    Sketcher.Constraint("PointOnObject", 0, 2, -1),
    Sketcher.Constraint("Horizontal", 3, 2, 6, 2),
    Sketcher.Constraint("DistanceX", -1, 1, 0, 2, Q("24 mm")),
    Sketcher.Constraint("DistanceX", 1, 2, 1, 1, Q("3.909591 mm")),
    Sketcher.Constraint("DistanceX", 5, 2, 5, 1, Q("3.722227 mm")),
    Sketcher.Constraint("DistanceY", 0, 2, 0, 1, Q("2.522042 mm")),
])
pocket12 = body.newObject("PartDesign::Pocket", "Pocket011")
pocket12.Profile = sketch16
pocket12.Length = 3
pocket12.Reversed = True
doc.recompute()

fillet2 = body.newObject("PartDesign::Fillet", "Fillet001")
fillet2.Base = (pocket12, edges_at(pocket12, [
    (24, 1.261, -30.453),
    (20.09, 1.261, -30.453),
    (-20.278, 1.261, -30.453),
    (24, 1.261, 28.015),
    (20.09, 1.261, 28.015),
    (-20.278, 1.261, 28.015),
    (-24, 1.261, -30.453),
    (-24, 1.261, 28.015),
    (-20.278, 1.261, 33.3),
    (-24, 1.261, 33.3),
    (20.09, 1.261, 33.3),
    (24, 1.261, 33.3),
    (20.09, 1.261, -34.3),
    (24, 1.261, -34.3),
    (-20.278, 1.261, -34.3),
    (-24, 1.261, -34.3),
]))
fillet2.Radius = 1.5
doc.recompute()

fillet3 = body.newObject("PartDesign::Fillet", "Fillet002")
fillet3.Base = (fillet2, edges_at(fillet2, [
    (-10.1, 8.5, -39.3),
    (-10.1, 8.5, -27.15),
    (10.1, 8.5, -27.15),
    (0, 4.5, -39.3),
    (10.1, 8.5, -39.3),
    (-10.1, 12.5, -33.225),
    (0, 12.5, -27.15),
    (10.1, 12.5, -33.225),
    (0, 12.5, -39.3),
    (15.175, 8.5, 39.3),
    (15.175, 8.5, 27.15),
    (-15.175, 8.5, 27.15),
    (0, 4.5, 39.3),
    (-15.175, 8.5, 39.3),
    (15.175, 12.5, 33.225),
    (0, 12.5, 27.15),
    (-15.175, 12.5, 33.225),
    (0, 12.5, 39.3),
]))
fillet3.Radius = 0.3

# Sketch on XZ plane
sketch17 = body.newObject("Sketcher::SketchObject", "Sketch016")
sketch17.AttachmentSupport = (doc.getObject("XZ_Plane"), [""])
sketch17.MapMode = "FlatFace"
sketch17.AttachmentOffset = App.Placement(Vector(0, 0, -4.5), App.Rotation())
sketch17.addGeometry([
    Part.LineSegment(Vector(-24, 7, 0), Vector(-24, 25, 0)),
    Part.LineSegment(Vector(-24, 25, 0), Vector(-14, 25, 0)),
    Part.LineSegment(Vector(-14, 25, 0), Vector(-14, 7, 0)),
    Part.LineSegment(Vector(-14, 7, 0), Vector(-24, 7, 0)),
], False)
sketch17.addConstraint([
    Sketcher.Constraint("Coincident", 0, 2, 1, 1),
    Sketcher.Constraint("Coincident", 1, 2, 2, 1),
    Sketcher.Constraint("Coincident", 2, 2, 3, 1),
    Sketcher.Constraint("Coincident", 3, 2, 0, 1),
    Sketcher.Constraint("Vertical", 0),
    Sketcher.Constraint("Horizontal", 1),
    Sketcher.Constraint("Vertical", 2),
    Sketcher.Constraint("Horizontal", 3),
    Sketcher.Constraint("DistanceX", 0, 2, -1, 1, Q("24 mm")),
    Sketcher.Constraint("DistanceX", 1, 1, 1, 2, Q("9.960941 mm")),
    Sketcher.Constraint("DistanceY", 0, 1, 0, 2, Q("18.145795 mm")),
    Sketcher.Constraint("DistanceY", -1, 1, 0, 2, Q("24.697002 mm")),
])
pad5 = body.newObject("PartDesign::Pad", "Pad004")
pad5.Profile = sketch17
pad5.Length = 6
pad5.Reversed = True

# Sketch on YZ plane
sketch18 = body.newObject("Sketcher::SketchObject", "Sketch017")
sketch18.AttachmentSupport = (doc.getObject("YZ_Plane"), [""])
sketch18.MapMode = "FlatFace"
sketch18.AttachmentOffset = App.Placement(Vector(0, 0, -24), App.Rotation())
sketch18.addGeometry([
    Part.LineSegment(Vector(10, 7, 0), Vector(4, 7, 0)),
    Part.LineSegment(Vector(4, 7, 0), Vector(4, 25, 0)),
    Part.LineSegment(Vector(4, 25, 0), Vector(10, 25, 0)),
    Part.LineSegment(Vector(10, 25, 0), Vector(10, 7, 0)),
], False)
sketch18.addConstraint([
    Sketcher.Constraint("Coincident", 0, 2, 1, 1),
    Sketcher.Constraint("Coincident", 1, 2, 2, 1),
    Sketcher.Constraint("Coincident", 2, 2, 3, 1),
    Sketcher.Constraint("Coincident", 3, 2, 0, 1),
    Sketcher.Constraint("Horizontal", 0),
    Sketcher.Constraint("Vertical", 1),
    Sketcher.Constraint("Horizontal", 2),
    Sketcher.Constraint("Vertical", 3),
    Sketcher.Constraint("DistanceX", -1, 1, 2, 2, Q("10.5 mm")),
    Sketcher.Constraint("DistanceX", 0, 2, 0, 1, Q("6.154854 mm")),
    Sketcher.Constraint("DistanceY", 1, 1, 1, 2, Q("18.145795 mm")),
    Sketcher.Constraint("DistanceY", -1, 1, 0, 2, Q("6.551208 mm")),
])
pocket13 = body.newObject("PartDesign::Pocket", "Pocket012")
pocket13.Profile = sketch18
pocket13.Length = 0.1
pocket13.Reversed = True
doc.recompute()

fillet4 = body.newObject("PartDesign::Fillet", "Fillet003")
fillet4.Base = (pocket13, edges_at(pocket13, [
    (-14.039, 7.5, 24.697),
    (-14.039, 7.5, 6.551),
    (-14.039, 10.5, 15.624),
    (-18.97, 10.5, 6.551),
    (-18.97, 10.5, 24.697),
    (-23.9, 7.5, 6.551),
    (-23.9, 7.5, 24.697),
    (-23.9, 10.5, 15.624),
]))
fillet4.Radius = 0.3

doc.recompute()
